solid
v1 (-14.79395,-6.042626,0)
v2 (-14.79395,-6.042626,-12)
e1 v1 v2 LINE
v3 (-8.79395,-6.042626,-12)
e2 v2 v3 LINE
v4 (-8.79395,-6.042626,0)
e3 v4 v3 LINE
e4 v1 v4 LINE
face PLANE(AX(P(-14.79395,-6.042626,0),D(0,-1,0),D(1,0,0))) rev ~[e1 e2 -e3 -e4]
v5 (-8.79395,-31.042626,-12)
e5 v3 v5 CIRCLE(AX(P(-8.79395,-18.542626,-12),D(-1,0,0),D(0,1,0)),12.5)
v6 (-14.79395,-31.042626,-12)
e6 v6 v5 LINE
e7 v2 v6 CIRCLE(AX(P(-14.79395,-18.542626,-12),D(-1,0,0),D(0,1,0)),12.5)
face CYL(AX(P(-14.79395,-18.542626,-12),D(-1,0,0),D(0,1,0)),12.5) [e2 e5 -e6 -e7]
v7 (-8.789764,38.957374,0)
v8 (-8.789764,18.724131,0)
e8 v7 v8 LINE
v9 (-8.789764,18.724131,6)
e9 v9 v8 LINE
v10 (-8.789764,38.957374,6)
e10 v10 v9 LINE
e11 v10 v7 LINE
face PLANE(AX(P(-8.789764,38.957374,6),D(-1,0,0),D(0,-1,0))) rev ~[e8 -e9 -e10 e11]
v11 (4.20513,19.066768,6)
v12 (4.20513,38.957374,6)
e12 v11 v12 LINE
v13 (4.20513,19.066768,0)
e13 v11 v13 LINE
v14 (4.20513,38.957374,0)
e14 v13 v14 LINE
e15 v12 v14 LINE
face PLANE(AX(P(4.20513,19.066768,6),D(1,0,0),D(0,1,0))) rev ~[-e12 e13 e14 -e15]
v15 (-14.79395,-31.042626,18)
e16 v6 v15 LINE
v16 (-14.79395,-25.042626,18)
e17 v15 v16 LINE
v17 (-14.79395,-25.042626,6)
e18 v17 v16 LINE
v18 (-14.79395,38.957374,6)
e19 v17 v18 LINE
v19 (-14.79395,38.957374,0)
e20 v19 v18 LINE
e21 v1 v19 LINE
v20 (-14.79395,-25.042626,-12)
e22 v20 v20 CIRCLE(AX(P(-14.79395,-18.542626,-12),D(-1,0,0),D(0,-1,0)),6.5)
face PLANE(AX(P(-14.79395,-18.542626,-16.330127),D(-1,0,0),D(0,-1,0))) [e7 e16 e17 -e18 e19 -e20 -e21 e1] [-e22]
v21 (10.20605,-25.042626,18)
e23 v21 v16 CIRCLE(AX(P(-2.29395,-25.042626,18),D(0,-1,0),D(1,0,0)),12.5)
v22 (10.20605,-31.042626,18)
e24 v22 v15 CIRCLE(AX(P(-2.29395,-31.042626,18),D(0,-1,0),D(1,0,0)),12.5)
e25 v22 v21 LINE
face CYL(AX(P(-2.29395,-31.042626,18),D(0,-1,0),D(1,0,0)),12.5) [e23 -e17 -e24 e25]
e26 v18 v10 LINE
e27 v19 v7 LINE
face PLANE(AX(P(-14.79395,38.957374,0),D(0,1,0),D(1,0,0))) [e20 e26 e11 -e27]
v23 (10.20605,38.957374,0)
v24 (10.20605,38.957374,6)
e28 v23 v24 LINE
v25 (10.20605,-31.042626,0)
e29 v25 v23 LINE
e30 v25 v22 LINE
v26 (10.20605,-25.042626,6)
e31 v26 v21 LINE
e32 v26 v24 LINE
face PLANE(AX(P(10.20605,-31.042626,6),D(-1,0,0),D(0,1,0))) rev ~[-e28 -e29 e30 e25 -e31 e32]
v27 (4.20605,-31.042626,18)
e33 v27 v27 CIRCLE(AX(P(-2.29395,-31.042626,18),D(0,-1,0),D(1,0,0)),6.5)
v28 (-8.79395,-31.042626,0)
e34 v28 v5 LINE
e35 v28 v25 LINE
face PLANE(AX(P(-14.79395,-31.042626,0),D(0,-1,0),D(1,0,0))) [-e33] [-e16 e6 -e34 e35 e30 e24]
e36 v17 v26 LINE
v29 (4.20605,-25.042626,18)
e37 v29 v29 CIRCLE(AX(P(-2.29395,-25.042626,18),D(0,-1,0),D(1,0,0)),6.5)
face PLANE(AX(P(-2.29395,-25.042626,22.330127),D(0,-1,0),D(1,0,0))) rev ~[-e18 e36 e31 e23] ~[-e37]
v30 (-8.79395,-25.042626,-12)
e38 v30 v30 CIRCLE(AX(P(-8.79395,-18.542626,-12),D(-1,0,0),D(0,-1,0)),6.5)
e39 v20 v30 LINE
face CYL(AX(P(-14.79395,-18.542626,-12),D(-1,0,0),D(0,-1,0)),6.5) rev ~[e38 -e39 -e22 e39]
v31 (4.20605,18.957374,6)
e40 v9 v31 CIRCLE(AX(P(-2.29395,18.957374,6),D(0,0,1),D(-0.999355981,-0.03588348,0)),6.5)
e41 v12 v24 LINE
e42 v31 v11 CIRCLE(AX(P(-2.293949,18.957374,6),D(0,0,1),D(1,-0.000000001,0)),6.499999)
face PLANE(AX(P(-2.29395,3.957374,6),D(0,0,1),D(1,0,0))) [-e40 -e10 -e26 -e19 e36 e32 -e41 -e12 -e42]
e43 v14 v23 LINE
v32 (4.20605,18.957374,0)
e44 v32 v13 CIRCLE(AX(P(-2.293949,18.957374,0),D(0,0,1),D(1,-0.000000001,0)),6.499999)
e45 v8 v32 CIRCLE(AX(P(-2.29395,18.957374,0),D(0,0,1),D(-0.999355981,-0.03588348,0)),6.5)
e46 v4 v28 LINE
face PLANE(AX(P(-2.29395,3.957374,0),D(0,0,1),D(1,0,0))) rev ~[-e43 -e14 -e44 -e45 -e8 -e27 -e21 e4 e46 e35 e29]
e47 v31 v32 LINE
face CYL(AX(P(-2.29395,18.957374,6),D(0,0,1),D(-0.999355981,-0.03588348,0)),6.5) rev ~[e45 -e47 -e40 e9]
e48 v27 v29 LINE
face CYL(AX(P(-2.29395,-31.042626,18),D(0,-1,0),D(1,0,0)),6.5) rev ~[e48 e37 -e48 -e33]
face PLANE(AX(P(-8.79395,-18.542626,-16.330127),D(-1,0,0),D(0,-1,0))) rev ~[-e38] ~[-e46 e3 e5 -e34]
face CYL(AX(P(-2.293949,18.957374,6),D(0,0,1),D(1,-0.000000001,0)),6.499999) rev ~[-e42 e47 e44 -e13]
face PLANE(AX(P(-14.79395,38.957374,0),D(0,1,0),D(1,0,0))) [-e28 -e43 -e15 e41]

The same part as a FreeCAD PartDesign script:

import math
import FreeCAD as App
import Part
import Sketcher
from FreeCAD import Vector
Q = App.Units.Quantity

doc = App.newDocument("Part")
body = doc.addObject("PartDesign::Body", "Body")

# Sketch on XY plane
sketch1 = body.newObject("Sketcher::SketchObject", "Sketch")
sketch1.AttachmentSupport = (doc.getObject("XY_Plane"), [""])
sketch1.MapMode = "FlatFace"
sketch1.addGeometry([
    Part.LineSegment(Vector(-15, 39, 0), Vector(-15, -31, 0)),
    Part.LineSegment(Vector(-15, -31, 0), Vector(10, -31, 0)),
    Part.LineSegment(Vector(10, -31, 0), Vector(10, 39, 0)),
    Part.LineSegment(Vector(10, 39, 0), Vector(-15, 39, 0)),
], False)
sketch1.addConstraint([
    Sketcher.Constraint("Coincident", 0, 2, 1, 1),
    Sketcher.Constraint("Coincident", 1, 2, 2, 1),
    Sketcher.Constraint("Coincident", 2, 2, 3, 1),
    Sketcher.Constraint("Coincident", 3, 2, 0, 1),
    Sketcher.Constraint("Vertical", 0),
    Sketcher.Constraint("Horizontal", 1),
    Sketcher.Constraint("Vertical", 2),
    Sketcher.Constraint("Horizontal", 3),
    Sketcher.Constraint("DistanceX", 1, 1, 1, 2, Q("25 mm")),
    Sketcher.Constraint("DistanceY", 0, 2, 0, 1, Q("70 mm")),
    Sketcher.Constraint("DistanceX", 0, 2, -1, 1, Q("14.79395 mm")),
    Sketcher.Constraint("DistanceY", 0, 2, -1, 1, Q("31.042626 mm")),
])
pad1 = body.newObject("PartDesign::Pad", "Pad")
pad1.Profile = sketch1
pad1.Length = 6

# Sketch on XY plane
sketch2 = body.newObject("Sketcher::SketchObject", "Sketch001")
sketch2.AttachmentSupport = (doc.getObject("XY_Plane"), [""])
sketch2.MapMode = "FlatFace"
sketch2.AttachmentOffset = App.Placement(Vector(0, 0, 6), App.Rotation())
sketch2.addGeometry([
    Part.LineSegment(Vector(-15, -25, 0), Vector(-15, -31, 0)),
    Part.LineSegment(Vector(-15, -31, 0), Vector(10, -31, 0)),
    Part.LineSegment(Vector(10, -31, 0), Vector(10, -25, 0)),
    Part.LineSegment(Vector(10, -25, 0), Vector(-15, -25, 0)),
], False)
sketch2.addConstraint([
    Sketcher.Constraint("Coincident", 0, 2, 1, 1),
    Sketcher.Constraint("Coincident", 1, 2, 2, 1),
    Sketcher.Constraint("Coincident", 2, 2, 3, 1),
    Sketcher.Constraint("Coincident", 3, 2, 0, 1),
    Sketcher.Constraint("Vertical", 0),
    Sketcher.Constraint("Horizontal", 1),
    Sketcher.Constraint("Vertical", 2),
    Sketcher.Constraint("Horizontal", 3),
    Sketcher.Constraint("DistanceX", 1, 1, 1, 2, Q("25 mm")),
    Sketcher.Constraint("DistanceY", 0, 2, 0, 1, Q("6 mm")),
    Sketcher.Constraint("DistanceX", 0, 2, -1, 1, Q("14.79395 mm")),
    Sketcher.Constraint("DistanceY", 0, 2, -1, 1, Q("31.042626 mm")),
])
pad2 = body.newObject("PartDesign::Pad", "Pad001")
pad2.Profile = sketch2
pad2.Length = 12

# Sketch on XZ plane
sketch3 = body.newObject("Sketcher::SketchObject", "Sketch002")
sketch3.AttachmentSupport = (doc.getObject("XZ_Plane"), [""])
sketch3.MapMode = "FlatFace"
sketch3.AttachmentOffset = App.Placement(Vector(0, 0, 31.042626), App.Rotation())
sketch3.addGeometry([
    Part.LineSegment(Vector(-15, 18, 0), Vector(10, 18, 0)),
    Part.ArcOfCircle(Part.Circle(Vector(-2, 18, 0), Vector(0, 0, 1), 12), math.radians(0), math.radians(180)),
], False)
sketch3.addConstraint([
    Sketcher.Constraint("Coincident", 0, 1, 1, 2),
    Sketcher.Constraint("Coincident", 1, 1, 0, 2),
    Sketcher.Constraint("Horizontal", 0),
    Sketcher.Constraint("Horizontal", 1, 3, 0, 1),
    Sketcher.Constraint("Radius", 1, Q("12.5 mm")),
    Sketcher.Constraint("DistanceY", -1, 1, 1, 3, Q("18 mm")),
    Sketcher.Constraint("DistanceX", 1, 3, -1, 1, Q("2.29395 mm")),
])
pad3 = body.newObject("PartDesign::Pad", "Pad002")
pad3.Profile = sketch3
pad3.Length = 6
pad3.Reversed = True

# Sketch on XZ plane
sketch4 = body.newObject("Sketcher::SketchObject", "Sketch003")
sketch4.AttachmentSupport = (doc.getObject("XZ_Plane"), [""])
sketch4.MapMode = "FlatFace"
sketch4.AttachmentOffset = App.Placement(Vector(0, 0, 31.042626), App.Rotation())
sketch4.addGeometry(Part.Circle(Vector(-2, 18, 0), Vector(0, 0, 1), 6), False)
sketch4.addConstraint([
    Sketcher.Constraint("Diameter", 0, Q("13 mm")),
    Sketcher.Constraint("DistanceY", -1, 1, 0, 3, Q("18 mm")),
    Sketcher.Constraint("DistanceX", 0, 3, -1, 1, Q("2.29395 mm")),
])
pocket1 = body.newObject("PartDesign::Pocket", "Pocket")
pocket1.Profile = sketch4
pocket1.Length = 25

# Sketch on XY plane
sketch5 = body.newObject("Sketcher::SketchObject", "Sketch004")
sketch5.AttachmentSupport = (doc.getObject("XY_Plane"), [""])
sketch5.MapMode = "FlatFace"
sketch5.AttachmentOffset = App.Placement(Vector(0, 0, 6), App.Rotation())
sketch5.addGeometry([
    Part.ArcOfCircle(Part.Circle(Vector(-2.29, 18.96, 0), Vector(0, 0, 1), 6.5), math.radians(-178), math.radians(0)),  # 0
    Part.ArcOfCircle(Part.Circle(Vector(-2.29, 18.96, 0), Vector(0, 0, 1), 6.5), math.radians(0), math.radians(0.96)),  # 1
    Part.LineSegment(Vector(4.21, 19.07, 0), Vector(4.21, 38.96, 0)),  # 2
    Part.LineSegment(Vector(4.21, 38.96, 0), Vector(-8.79, 38.96, 0)),  # 3
    Part.LineSegment(Vector(-8.79, 38.96, 0), Vector(-8.79, 18.72, 0)),  # 4
], False)
sketch5.addConstraint([
    Sketcher.Constraint("Tangent", 0, 2, 1, 1),
    Sketcher.Constraint("Coincident", 1, 2, 2, 1),
    Sketcher.Constraint("Coincident", 2, 2, 3, 1),
    Sketcher.Constraint("Coincident", 3, 2, 4, 1),
    Sketcher.Constraint("Coincident", 4, 2, 0, 1),
    Sketcher.Constraint("Vertical", 2),
    Sketcher.Constraint("Horizontal", 3),
    Sketcher.Constraint("Vertical", 4),
    Sketcher.Constraint("Equal", 0, 1),
    Sketcher.Constraint("Horizontal", 1, 3, 0, 2),
    Sketcher.Constraint("Radius", 0, Q("6.5 mm")),
    Sketcher.Constraint("DistanceY", 0, 2, 2, 2, Q("20 mm")),
    Sketcher.Constraint("DistanceX", 3, 2, 3, 1, Q("12.994893 mm")),
    Sketcher.Constraint("DistanceY", 2, 1, 2, 2, Q("19.890605 mm")),
    Sketcher.Constraint("DistanceX", 0, 3, -1, 1, Q("2.29395 mm")),
    Sketcher.Constraint("DistanceY", -1, 1, 1, 2, Q("19.066768 mm")),
])
pocket2 = body.newObject("PartDesign::Pocket", "Pocket001")
pocket2.Profile = sketch5
pocket2.Length = 25

# Sketch on XY plane
sketch6 = body.newObject("Sketcher::SketchObject", "Sketch005")
sketch6.AttachmentSupport = (doc.getObject("XY_Plane"), [""])
sketch6.MapMode = "FlatFace"
sketch6.addGeometry([
    Part.LineSegment(Vector(-15, -31, 0), Vector(-15, -6, 0)),
    Part.LineSegment(Vector(-15, -6, 0), Vector(-9, -6, 0)),
    Part.LineSegment(Vector(-9, -6, 0), Vector(-9, -31, 0)),
    Part.LineSegment(Vector(-9, -31, 0), Vector(-15, -31, 0)),
], False)
sketch6.addConstraint([
    Sketcher.Constraint("Coincident", 0, 2, 1, 1),
    Sketcher.Constraint("Coincident", 1, 2, 2, 1),
    Sketcher.Constraint("Coincident", 2, 2, 3, 1),
    Sketcher.Constraint("Coincident", 3, 2, 0, 1),
    Sketcher.Constraint("Vertical", 0),
    Sketcher.Constraint("Horizontal", 1),
    Sketcher.Constraint("Vertical", 2),
    Sketcher.Constraint("Horizontal", 3),
    Sketcher.Constraint("DistanceX", 1, 1, 1, 2, Q("6 mm")),
    Sketcher.Constraint("DistanceY", 0, 1, 0, 2, Q("25 mm")),
    Sketcher.Constraint("DistanceX", 0, 2, -1, 1, Q("14.79395 mm")),
    Sketcher.Constraint("DistanceY", 0, 2, -1, 1, Q("6.042626 mm")),
])
pad4 = body.newObject("PartDesign::Pad", "Pad003")
pad4.Profile = sketch6
pad4.Length = 12
pad4.Reversed = True

# Sketch on YZ plane
sketch7 = body.newObject("Sketcher::SketchObject", "Sketch006")
sketch7.AttachmentSupport = (doc.getObject("YZ_Plane"), [""])
sketch7.MapMode = "FlatFace"
sketch7.AttachmentOffset = App.Placement(Vector(0, 0, -14.79395), App.Rotation())
sketch7.addGeometry([
    Part.ArcOfCircle(Part.Circle(Vector(-19, -12, 0), Vector(0, 0, 1), 12), math.radians(180), math.radians(360)),
    Part.LineSegment(Vector(-31, -12, 0), Vector(-6, -12, 0)),
], False)
sketch7.addConstraint([
    Sketcher.Constraint("Coincident", 0, 1, 1, 1),
    Sketcher.Constraint("Coincident", 1, 2, 0, 2),
    Sketcher.Constraint("Horizontal", 1),
    Sketcher.Constraint("Radius", 0, Q("12.5 mm")),
    Sketcher.Constraint("DistanceY", 0, 3, -1, 1, Q("12 mm")),
    Sketcher.Constraint("DistanceY", 0, 1, -1, 1, Q("12 mm")),
    Sketcher.Constraint("DistanceX", 0, 3, -1, 1, Q("18.542626 mm")),
])
pad5 = body.newObject("PartDesign::Pad", "Pad004")
pad5.Profile = sketch7
pad5.Length = 6

# Sketch on YZ plane
sketch8 = body.newObject("Sketcher::SketchObject", "Sketch007")
sketch8.AttachmentSupport = (doc.getObject("YZ_Plane"), [""])
sketch8.MapMode = "FlatFace"
sketch8.AttachmentOffset = App.Placement(Vector(0, 0, -14.79395), App.Rotation())
sketch8.addGeometry(Part.Circle(Vector(-19, -12, 0), Vector(0, 0, 1), 6), False)
sketch8.addConstraint([
    Sketcher.Constraint("Diameter", 0, Q("13 mm")),
    Sketcher.Constraint("DistanceY", 0, 3, -1, 1, Q("12 mm")),
    Sketcher.Constraint("DistanceX", 0, 3, -1, 1, Q("18.542626 mm")),
])
pocket3 = body.newObject("PartDesign::Pocket", "Pocket002")
pocket3.Profile = sketch8
pocket3.Length = 25
pocket3.Reversed = True

doc.recompute()
